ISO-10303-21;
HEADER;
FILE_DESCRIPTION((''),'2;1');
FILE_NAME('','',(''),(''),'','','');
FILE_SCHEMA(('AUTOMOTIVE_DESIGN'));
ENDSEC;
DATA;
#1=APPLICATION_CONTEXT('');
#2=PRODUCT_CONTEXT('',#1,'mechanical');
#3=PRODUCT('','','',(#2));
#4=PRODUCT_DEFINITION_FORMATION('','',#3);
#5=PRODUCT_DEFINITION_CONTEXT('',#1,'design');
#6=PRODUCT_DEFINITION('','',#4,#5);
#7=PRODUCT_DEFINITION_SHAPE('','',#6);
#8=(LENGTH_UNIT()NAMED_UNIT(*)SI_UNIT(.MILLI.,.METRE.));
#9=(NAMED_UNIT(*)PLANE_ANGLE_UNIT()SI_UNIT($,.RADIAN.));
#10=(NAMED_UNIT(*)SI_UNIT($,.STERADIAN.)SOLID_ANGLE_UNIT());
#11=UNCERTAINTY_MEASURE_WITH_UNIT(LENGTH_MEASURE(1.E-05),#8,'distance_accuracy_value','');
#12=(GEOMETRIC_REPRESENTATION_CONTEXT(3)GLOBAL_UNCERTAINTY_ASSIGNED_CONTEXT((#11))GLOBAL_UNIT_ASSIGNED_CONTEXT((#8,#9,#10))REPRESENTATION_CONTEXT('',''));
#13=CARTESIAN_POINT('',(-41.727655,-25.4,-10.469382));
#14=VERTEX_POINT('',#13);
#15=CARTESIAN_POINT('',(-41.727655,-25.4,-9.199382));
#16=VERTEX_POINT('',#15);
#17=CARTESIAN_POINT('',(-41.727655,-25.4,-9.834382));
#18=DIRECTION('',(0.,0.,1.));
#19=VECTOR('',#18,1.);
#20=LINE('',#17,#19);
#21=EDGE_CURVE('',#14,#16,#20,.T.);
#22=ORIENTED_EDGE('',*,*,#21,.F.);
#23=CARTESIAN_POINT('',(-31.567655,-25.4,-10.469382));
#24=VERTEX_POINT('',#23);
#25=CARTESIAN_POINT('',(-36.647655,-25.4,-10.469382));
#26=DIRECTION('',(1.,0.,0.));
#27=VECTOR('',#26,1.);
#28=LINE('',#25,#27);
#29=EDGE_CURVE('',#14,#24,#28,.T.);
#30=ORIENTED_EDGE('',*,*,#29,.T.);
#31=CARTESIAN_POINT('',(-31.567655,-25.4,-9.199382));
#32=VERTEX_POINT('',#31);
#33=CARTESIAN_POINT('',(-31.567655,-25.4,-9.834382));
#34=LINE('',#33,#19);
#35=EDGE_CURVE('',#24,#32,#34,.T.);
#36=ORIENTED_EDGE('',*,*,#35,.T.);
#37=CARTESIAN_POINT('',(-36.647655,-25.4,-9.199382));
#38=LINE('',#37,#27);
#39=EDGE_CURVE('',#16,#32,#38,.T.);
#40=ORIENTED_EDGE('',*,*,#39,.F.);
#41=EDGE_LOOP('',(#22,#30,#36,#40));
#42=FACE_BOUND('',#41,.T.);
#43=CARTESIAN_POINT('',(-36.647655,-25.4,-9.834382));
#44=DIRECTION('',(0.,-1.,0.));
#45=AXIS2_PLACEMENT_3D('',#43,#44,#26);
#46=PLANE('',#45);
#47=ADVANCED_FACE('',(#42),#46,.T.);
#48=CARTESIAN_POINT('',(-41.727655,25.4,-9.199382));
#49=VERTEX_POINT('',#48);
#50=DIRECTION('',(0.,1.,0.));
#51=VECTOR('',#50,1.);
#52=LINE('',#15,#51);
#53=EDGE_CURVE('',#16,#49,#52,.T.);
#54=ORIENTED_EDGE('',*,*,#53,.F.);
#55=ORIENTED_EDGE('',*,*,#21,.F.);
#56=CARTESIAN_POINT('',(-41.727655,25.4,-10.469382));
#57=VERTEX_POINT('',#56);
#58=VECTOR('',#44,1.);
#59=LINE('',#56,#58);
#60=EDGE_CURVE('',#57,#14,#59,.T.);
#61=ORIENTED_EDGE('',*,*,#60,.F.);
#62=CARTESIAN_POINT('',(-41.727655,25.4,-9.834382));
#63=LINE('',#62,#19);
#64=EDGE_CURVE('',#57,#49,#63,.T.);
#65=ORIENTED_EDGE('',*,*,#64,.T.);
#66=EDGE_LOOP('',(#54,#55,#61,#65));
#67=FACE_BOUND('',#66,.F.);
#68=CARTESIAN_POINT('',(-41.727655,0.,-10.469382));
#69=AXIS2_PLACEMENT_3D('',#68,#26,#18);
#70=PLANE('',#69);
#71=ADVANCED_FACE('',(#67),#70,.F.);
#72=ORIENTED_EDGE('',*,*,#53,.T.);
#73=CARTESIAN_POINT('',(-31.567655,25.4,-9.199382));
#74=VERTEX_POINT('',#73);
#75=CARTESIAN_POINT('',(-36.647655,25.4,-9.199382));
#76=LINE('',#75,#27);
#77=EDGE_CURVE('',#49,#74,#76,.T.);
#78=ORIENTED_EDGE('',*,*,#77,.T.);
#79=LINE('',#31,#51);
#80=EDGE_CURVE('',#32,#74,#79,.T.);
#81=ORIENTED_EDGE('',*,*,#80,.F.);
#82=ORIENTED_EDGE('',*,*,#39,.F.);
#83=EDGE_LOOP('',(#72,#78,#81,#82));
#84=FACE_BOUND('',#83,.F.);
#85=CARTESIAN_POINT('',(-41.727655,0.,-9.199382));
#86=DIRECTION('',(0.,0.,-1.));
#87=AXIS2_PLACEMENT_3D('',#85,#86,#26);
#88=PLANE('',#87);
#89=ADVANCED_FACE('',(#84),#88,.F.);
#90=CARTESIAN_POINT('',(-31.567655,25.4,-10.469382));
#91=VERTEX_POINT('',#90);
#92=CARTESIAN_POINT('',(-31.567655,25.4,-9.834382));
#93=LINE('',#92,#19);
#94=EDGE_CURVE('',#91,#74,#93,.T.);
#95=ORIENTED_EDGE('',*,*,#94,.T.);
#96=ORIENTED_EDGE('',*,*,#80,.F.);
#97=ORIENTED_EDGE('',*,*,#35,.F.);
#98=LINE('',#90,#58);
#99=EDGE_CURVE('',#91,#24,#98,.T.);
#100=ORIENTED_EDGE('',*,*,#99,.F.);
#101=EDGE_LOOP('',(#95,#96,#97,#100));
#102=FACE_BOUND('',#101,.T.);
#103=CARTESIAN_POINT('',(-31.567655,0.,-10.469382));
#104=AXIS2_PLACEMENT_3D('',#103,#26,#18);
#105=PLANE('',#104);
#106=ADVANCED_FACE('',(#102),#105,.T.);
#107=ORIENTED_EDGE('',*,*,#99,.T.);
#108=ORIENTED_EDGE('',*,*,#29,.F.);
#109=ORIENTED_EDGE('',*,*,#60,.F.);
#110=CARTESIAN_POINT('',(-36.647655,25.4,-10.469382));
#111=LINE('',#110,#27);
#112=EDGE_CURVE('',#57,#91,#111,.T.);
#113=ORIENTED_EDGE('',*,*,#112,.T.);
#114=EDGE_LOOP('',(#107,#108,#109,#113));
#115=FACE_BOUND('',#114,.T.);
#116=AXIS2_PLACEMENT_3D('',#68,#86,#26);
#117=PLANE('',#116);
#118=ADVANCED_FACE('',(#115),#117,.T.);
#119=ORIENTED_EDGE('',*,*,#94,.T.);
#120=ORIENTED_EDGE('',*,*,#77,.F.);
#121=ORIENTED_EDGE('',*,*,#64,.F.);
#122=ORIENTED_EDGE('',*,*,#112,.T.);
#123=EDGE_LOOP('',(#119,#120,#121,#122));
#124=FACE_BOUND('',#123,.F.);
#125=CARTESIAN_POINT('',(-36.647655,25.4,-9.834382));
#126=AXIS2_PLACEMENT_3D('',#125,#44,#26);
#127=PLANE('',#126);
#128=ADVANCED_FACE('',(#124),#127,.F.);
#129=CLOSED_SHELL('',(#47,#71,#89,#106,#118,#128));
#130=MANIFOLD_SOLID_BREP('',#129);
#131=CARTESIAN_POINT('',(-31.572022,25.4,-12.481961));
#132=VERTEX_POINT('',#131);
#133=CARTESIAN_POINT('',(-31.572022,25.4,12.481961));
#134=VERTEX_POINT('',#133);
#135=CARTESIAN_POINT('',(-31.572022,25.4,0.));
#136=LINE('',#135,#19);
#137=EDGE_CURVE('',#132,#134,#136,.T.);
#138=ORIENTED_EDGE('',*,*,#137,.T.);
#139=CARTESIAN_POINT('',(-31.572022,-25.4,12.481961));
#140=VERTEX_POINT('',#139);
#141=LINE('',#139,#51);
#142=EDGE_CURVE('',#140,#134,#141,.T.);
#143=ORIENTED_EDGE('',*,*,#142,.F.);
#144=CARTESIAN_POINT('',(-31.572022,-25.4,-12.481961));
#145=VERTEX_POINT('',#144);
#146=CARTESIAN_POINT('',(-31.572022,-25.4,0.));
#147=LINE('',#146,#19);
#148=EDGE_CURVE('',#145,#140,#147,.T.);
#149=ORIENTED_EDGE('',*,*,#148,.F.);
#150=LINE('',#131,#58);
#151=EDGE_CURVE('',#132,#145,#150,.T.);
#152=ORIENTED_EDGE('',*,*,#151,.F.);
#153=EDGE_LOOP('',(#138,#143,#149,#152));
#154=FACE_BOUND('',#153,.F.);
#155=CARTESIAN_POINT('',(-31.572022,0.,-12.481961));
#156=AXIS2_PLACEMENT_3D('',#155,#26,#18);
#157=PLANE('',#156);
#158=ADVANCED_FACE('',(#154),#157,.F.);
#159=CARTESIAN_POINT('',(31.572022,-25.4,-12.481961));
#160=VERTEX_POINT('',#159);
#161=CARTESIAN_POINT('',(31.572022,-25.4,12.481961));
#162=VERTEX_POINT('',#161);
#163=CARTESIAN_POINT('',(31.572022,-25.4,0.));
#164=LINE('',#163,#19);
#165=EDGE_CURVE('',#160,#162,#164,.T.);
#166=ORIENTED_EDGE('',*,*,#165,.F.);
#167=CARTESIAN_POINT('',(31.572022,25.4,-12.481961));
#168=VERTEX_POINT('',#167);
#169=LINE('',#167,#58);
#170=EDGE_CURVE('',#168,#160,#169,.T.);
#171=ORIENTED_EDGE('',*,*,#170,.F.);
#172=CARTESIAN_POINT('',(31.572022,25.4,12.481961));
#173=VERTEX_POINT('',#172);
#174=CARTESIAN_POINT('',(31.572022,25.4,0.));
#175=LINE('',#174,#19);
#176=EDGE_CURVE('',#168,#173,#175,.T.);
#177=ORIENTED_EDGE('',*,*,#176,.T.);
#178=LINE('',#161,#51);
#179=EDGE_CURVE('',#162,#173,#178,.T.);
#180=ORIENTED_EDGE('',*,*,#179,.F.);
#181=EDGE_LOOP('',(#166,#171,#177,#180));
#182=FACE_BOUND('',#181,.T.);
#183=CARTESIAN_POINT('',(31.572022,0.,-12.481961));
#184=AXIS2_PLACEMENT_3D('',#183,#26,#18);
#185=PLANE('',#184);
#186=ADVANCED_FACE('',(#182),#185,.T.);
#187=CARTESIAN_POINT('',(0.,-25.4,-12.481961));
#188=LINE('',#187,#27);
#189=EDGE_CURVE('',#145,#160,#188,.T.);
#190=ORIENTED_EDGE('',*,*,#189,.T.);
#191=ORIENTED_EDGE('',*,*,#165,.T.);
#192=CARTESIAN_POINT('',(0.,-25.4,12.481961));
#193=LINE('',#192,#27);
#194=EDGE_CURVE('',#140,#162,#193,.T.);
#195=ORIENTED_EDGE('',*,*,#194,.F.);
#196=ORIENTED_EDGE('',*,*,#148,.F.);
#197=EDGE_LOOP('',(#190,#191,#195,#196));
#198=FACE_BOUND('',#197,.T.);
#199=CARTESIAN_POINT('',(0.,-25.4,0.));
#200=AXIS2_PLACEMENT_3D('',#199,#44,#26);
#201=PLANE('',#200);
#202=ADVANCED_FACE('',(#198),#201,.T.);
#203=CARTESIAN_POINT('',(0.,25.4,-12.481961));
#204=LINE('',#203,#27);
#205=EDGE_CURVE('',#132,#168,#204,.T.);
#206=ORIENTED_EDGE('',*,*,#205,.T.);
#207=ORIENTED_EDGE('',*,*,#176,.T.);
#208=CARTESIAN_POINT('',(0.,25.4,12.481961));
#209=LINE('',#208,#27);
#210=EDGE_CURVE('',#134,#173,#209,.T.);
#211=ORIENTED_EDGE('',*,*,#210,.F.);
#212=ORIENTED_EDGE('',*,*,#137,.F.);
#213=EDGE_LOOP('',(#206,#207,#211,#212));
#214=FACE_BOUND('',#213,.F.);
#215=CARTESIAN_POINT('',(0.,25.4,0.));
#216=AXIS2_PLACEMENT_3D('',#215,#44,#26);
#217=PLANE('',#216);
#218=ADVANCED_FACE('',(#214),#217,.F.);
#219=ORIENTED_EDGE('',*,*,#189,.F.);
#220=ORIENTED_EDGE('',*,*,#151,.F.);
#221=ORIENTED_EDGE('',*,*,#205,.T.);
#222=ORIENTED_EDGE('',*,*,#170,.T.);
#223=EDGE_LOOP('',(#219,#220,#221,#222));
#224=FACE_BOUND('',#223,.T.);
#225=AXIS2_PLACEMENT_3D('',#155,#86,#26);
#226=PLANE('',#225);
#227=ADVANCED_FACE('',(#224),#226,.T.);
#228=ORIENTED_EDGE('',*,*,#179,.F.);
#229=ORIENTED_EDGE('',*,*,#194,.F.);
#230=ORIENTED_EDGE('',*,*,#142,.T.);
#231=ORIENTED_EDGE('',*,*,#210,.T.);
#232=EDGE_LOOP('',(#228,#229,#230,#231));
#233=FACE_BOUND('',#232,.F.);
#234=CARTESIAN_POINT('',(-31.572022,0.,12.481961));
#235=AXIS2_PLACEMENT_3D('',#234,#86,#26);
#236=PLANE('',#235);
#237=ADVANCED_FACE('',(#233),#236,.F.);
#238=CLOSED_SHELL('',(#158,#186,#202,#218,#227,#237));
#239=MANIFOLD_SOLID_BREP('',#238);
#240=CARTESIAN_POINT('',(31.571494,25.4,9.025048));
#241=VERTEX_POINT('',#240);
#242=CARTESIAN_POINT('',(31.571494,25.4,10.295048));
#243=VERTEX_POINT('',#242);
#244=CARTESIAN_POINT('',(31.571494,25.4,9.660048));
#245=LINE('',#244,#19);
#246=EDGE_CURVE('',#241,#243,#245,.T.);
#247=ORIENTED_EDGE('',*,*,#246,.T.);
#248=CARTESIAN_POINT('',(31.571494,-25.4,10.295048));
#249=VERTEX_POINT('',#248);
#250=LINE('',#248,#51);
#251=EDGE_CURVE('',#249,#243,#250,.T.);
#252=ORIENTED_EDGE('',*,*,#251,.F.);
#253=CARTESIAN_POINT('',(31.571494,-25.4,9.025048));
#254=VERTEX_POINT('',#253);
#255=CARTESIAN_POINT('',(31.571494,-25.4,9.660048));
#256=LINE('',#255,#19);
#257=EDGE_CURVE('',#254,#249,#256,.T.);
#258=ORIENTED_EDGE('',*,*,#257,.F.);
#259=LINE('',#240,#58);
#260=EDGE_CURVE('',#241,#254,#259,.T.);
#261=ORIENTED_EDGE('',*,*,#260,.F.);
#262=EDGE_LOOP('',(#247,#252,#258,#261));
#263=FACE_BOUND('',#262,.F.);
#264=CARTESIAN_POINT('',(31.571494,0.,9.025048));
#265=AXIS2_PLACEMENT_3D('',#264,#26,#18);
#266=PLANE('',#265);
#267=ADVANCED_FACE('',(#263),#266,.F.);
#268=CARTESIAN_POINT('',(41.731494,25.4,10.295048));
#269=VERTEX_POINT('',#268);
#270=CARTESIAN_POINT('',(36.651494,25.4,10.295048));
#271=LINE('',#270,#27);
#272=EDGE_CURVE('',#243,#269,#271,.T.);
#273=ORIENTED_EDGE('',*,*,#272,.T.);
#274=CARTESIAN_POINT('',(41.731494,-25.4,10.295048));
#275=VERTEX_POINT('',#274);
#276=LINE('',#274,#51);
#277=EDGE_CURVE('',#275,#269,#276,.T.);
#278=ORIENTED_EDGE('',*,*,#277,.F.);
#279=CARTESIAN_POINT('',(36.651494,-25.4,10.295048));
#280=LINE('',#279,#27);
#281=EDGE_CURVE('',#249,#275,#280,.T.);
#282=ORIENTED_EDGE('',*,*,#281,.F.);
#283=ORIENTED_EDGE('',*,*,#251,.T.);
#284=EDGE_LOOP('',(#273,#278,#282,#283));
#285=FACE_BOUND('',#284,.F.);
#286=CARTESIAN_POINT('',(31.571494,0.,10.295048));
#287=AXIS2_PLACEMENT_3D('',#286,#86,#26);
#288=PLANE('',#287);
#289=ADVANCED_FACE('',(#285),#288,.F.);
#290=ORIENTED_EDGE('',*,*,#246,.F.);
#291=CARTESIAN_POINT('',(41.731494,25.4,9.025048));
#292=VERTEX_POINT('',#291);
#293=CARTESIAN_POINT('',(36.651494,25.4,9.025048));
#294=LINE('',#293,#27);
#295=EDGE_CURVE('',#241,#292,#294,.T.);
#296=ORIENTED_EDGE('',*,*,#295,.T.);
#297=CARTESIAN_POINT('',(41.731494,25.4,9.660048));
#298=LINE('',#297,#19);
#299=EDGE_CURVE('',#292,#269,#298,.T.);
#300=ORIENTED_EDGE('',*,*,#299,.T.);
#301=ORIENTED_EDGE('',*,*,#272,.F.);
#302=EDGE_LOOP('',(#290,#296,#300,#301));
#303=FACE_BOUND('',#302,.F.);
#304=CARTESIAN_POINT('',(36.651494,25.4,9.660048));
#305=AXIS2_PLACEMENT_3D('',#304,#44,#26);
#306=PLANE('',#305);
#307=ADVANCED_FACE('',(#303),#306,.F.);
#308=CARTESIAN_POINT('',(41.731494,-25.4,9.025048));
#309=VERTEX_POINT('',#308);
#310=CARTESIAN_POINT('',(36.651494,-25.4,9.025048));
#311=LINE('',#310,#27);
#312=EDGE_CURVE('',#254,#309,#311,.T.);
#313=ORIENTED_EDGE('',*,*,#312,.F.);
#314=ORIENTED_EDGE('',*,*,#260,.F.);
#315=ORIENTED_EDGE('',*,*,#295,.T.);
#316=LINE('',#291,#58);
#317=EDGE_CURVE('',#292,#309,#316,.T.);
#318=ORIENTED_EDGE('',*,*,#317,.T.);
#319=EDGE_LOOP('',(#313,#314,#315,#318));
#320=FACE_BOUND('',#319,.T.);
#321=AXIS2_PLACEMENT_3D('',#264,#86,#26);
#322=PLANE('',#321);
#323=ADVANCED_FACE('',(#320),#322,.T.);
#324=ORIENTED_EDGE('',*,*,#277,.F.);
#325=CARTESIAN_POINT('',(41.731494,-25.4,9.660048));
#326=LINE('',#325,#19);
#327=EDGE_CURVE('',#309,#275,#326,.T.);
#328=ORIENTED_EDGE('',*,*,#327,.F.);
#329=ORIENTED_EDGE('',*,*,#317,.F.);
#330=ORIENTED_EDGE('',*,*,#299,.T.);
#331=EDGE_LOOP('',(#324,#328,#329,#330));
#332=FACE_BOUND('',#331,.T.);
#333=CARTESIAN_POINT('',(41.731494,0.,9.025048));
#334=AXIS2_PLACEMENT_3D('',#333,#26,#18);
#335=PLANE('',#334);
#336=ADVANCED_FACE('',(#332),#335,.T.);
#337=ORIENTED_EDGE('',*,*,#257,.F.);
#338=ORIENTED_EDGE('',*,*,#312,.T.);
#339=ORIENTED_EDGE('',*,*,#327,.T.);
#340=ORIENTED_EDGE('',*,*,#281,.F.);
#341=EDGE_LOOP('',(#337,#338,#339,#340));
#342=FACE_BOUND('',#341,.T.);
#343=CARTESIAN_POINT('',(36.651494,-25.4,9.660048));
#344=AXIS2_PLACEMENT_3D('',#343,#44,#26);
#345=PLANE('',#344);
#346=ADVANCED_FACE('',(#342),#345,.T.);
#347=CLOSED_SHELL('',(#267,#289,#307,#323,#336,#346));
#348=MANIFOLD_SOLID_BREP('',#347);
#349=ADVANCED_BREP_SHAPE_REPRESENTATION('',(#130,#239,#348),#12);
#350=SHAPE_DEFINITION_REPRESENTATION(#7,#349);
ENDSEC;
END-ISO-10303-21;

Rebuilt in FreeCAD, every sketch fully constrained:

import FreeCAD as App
import Part
import Sketcher

V = App.Vector
Q = App.Units.Quantity


def add_polygon(sketch, points):
    """Adds a closed chain of lines whose ends are joined by coincident constraints."""
    first, n = sketch.GeometryCount, len(points)
    for a, b in zip(points, points[1:] + points[:1]):
        sketch.addGeometry(Part.LineSegment(App.Vector(*a, 0), App.Vector(*b, 0)), False)
    for i in range(n):
        sketch.addConstraint(Sketcher.Constraint("Coincident", first + i, 2, first + (i + 1) % n, 1))

doc = App.newDocument("Part")
body = doc.addObject("PartDesign::Body", "Body")

# Sketch on XZ plane
sketch1 = doc.addObject("Sketcher::SketchObject", "Sketch")
body.addObject(sketch1)
sketch1.AttachmentSupport = (doc.XZ_Plane, [""])
sketch1.MapMode = "FlatFace"
add_polygon(sketch1, [(-31.572022, 12.481961), (-31.572022, -12.481961), (31.572022, -12.481961), (31.572022, 12.481961)])  # lines 0-3
sketch1.addConstraint(Sketcher.Constraint("Vertical", 0))
sketch1.addConstraint(Sketcher.Constraint("Horizontal", 1))
sketch1.addConstraint(Sketcher.Constraint("Vertical", 2))
sketch1.addConstraint(Sketcher.Constraint("Horizontal", 3))
sketch1.addConstraint(Sketcher.Constraint("Symmetric", 0, 2, 2, 2, -1, 1))
sketch1.addConstraint(Sketcher.Constraint("DistanceX", 1, 1, 1, 2, 63.144043))
sketch1.addConstraint(Sketcher.Constraint("DistanceY", 0, 2, 0, 1, 24.963923))
pad1 = doc.addObject("PartDesign::Pad", "Pad")
body.addObject(pad1)
pad1.Profile = sketch1
pad1.Length = Q("2 in")
pad1.Midplane = True
body2 = doc.addObject("PartDesign::Body", "Body001")

# Sketch on XZ plane
sketch2 = doc.addObject("Sketcher::SketchObject", "Sketch001")
body2.addObject(sketch2)
sketch2.AttachmentSupport = (doc.getObject("XZ_Plane001"), [""])
sketch2.MapMode = "FlatFace"
add_polygon(sketch2, [(31.571494, 10.295048), (31.571494, 9.025048), (41.731494, 9.025048), (41.731494, 10.295048)])  # lines 0-3
sketch2.addConstraint(Sketcher.Constraint("Vertical", 0))
sketch2.addConstraint(Sketcher.Constraint("Horizontal", 1))
sketch2.addConstraint(Sketcher.Constraint("Vertical", 2))
sketch2.addConstraint(Sketcher.Constraint("Horizontal", 3))
sketch2.addConstraint(Sketcher.Constraint("DistanceX", 1, 1, 1, 2, Q("0.4 in")))
sketch2.addConstraint(Sketcher.Constraint("DistanceY", 0, 2, 0, 1, Q("0.05 in")))
sketch2.addConstraint(Sketcher.Constraint("DistanceX", -1, 1, 0, 2, 31.571494))
sketch2.addConstraint(Sketcher.Constraint("DistanceY", -1, 1, 0, 2, 9.025048))
pad2 = doc.addObject("PartDesign::Pad", "Pad001")
body2.addObject(pad2)
pad2.Profile = sketch2
pad2.Length = Q("2 in")
pad2.Midplane = True
body3 = doc.addObject("PartDesign::Body", "Body002")

# Sketch on XZ plane
sketch3 = doc.addObject("Sketcher::SketchObject", "Sketch002")
body3.addObject(sketch3)
sketch3.AttachmentSupport = (doc.getObject("XZ_Plane002"), [""])
sketch3.MapMode = "FlatFace"
add_polygon(sketch3, [(-41.727655, -9.199382), (-41.727655, -10.469382), (-31.567655, -10.469382), (-31.567655, -9.199382)])  # lines 0-3
sketch3.addConstraint(Sketcher.Constraint("Vertical", 0))
sketch3.addConstraint(Sketcher.Constraint("Horizontal", 1))
sketch3.addConstraint(Sketcher.Constraint("Vertical", 2))
sketch3.addConstraint(Sketcher.Constraint("Horizontal", 3))
sketch3.addConstraint(Sketcher.Constraint("DistanceX", 1, 1, 1, 2, Q("0.4 in")))
sketch3.addConstraint(Sketcher.Constraint("DistanceY", 0, 2, 0, 1, Q("0.05 in")))
sketch3.addConstraint(Sketcher.Constraint("DistanceX", 0, 2, -1, 1, 41.727655))
sketch3.addConstraint(Sketcher.Constraint("DistanceY", 0, 2, -1, 1, 10.469382))
pad3 = doc.addObject("PartDesign::Pad", "Pad002")
body3.addObject(pad3)
pad3.Profile = sketch3
pad3.Length = Q("2 in")
pad3.Midplane = True

doc.recompute()
